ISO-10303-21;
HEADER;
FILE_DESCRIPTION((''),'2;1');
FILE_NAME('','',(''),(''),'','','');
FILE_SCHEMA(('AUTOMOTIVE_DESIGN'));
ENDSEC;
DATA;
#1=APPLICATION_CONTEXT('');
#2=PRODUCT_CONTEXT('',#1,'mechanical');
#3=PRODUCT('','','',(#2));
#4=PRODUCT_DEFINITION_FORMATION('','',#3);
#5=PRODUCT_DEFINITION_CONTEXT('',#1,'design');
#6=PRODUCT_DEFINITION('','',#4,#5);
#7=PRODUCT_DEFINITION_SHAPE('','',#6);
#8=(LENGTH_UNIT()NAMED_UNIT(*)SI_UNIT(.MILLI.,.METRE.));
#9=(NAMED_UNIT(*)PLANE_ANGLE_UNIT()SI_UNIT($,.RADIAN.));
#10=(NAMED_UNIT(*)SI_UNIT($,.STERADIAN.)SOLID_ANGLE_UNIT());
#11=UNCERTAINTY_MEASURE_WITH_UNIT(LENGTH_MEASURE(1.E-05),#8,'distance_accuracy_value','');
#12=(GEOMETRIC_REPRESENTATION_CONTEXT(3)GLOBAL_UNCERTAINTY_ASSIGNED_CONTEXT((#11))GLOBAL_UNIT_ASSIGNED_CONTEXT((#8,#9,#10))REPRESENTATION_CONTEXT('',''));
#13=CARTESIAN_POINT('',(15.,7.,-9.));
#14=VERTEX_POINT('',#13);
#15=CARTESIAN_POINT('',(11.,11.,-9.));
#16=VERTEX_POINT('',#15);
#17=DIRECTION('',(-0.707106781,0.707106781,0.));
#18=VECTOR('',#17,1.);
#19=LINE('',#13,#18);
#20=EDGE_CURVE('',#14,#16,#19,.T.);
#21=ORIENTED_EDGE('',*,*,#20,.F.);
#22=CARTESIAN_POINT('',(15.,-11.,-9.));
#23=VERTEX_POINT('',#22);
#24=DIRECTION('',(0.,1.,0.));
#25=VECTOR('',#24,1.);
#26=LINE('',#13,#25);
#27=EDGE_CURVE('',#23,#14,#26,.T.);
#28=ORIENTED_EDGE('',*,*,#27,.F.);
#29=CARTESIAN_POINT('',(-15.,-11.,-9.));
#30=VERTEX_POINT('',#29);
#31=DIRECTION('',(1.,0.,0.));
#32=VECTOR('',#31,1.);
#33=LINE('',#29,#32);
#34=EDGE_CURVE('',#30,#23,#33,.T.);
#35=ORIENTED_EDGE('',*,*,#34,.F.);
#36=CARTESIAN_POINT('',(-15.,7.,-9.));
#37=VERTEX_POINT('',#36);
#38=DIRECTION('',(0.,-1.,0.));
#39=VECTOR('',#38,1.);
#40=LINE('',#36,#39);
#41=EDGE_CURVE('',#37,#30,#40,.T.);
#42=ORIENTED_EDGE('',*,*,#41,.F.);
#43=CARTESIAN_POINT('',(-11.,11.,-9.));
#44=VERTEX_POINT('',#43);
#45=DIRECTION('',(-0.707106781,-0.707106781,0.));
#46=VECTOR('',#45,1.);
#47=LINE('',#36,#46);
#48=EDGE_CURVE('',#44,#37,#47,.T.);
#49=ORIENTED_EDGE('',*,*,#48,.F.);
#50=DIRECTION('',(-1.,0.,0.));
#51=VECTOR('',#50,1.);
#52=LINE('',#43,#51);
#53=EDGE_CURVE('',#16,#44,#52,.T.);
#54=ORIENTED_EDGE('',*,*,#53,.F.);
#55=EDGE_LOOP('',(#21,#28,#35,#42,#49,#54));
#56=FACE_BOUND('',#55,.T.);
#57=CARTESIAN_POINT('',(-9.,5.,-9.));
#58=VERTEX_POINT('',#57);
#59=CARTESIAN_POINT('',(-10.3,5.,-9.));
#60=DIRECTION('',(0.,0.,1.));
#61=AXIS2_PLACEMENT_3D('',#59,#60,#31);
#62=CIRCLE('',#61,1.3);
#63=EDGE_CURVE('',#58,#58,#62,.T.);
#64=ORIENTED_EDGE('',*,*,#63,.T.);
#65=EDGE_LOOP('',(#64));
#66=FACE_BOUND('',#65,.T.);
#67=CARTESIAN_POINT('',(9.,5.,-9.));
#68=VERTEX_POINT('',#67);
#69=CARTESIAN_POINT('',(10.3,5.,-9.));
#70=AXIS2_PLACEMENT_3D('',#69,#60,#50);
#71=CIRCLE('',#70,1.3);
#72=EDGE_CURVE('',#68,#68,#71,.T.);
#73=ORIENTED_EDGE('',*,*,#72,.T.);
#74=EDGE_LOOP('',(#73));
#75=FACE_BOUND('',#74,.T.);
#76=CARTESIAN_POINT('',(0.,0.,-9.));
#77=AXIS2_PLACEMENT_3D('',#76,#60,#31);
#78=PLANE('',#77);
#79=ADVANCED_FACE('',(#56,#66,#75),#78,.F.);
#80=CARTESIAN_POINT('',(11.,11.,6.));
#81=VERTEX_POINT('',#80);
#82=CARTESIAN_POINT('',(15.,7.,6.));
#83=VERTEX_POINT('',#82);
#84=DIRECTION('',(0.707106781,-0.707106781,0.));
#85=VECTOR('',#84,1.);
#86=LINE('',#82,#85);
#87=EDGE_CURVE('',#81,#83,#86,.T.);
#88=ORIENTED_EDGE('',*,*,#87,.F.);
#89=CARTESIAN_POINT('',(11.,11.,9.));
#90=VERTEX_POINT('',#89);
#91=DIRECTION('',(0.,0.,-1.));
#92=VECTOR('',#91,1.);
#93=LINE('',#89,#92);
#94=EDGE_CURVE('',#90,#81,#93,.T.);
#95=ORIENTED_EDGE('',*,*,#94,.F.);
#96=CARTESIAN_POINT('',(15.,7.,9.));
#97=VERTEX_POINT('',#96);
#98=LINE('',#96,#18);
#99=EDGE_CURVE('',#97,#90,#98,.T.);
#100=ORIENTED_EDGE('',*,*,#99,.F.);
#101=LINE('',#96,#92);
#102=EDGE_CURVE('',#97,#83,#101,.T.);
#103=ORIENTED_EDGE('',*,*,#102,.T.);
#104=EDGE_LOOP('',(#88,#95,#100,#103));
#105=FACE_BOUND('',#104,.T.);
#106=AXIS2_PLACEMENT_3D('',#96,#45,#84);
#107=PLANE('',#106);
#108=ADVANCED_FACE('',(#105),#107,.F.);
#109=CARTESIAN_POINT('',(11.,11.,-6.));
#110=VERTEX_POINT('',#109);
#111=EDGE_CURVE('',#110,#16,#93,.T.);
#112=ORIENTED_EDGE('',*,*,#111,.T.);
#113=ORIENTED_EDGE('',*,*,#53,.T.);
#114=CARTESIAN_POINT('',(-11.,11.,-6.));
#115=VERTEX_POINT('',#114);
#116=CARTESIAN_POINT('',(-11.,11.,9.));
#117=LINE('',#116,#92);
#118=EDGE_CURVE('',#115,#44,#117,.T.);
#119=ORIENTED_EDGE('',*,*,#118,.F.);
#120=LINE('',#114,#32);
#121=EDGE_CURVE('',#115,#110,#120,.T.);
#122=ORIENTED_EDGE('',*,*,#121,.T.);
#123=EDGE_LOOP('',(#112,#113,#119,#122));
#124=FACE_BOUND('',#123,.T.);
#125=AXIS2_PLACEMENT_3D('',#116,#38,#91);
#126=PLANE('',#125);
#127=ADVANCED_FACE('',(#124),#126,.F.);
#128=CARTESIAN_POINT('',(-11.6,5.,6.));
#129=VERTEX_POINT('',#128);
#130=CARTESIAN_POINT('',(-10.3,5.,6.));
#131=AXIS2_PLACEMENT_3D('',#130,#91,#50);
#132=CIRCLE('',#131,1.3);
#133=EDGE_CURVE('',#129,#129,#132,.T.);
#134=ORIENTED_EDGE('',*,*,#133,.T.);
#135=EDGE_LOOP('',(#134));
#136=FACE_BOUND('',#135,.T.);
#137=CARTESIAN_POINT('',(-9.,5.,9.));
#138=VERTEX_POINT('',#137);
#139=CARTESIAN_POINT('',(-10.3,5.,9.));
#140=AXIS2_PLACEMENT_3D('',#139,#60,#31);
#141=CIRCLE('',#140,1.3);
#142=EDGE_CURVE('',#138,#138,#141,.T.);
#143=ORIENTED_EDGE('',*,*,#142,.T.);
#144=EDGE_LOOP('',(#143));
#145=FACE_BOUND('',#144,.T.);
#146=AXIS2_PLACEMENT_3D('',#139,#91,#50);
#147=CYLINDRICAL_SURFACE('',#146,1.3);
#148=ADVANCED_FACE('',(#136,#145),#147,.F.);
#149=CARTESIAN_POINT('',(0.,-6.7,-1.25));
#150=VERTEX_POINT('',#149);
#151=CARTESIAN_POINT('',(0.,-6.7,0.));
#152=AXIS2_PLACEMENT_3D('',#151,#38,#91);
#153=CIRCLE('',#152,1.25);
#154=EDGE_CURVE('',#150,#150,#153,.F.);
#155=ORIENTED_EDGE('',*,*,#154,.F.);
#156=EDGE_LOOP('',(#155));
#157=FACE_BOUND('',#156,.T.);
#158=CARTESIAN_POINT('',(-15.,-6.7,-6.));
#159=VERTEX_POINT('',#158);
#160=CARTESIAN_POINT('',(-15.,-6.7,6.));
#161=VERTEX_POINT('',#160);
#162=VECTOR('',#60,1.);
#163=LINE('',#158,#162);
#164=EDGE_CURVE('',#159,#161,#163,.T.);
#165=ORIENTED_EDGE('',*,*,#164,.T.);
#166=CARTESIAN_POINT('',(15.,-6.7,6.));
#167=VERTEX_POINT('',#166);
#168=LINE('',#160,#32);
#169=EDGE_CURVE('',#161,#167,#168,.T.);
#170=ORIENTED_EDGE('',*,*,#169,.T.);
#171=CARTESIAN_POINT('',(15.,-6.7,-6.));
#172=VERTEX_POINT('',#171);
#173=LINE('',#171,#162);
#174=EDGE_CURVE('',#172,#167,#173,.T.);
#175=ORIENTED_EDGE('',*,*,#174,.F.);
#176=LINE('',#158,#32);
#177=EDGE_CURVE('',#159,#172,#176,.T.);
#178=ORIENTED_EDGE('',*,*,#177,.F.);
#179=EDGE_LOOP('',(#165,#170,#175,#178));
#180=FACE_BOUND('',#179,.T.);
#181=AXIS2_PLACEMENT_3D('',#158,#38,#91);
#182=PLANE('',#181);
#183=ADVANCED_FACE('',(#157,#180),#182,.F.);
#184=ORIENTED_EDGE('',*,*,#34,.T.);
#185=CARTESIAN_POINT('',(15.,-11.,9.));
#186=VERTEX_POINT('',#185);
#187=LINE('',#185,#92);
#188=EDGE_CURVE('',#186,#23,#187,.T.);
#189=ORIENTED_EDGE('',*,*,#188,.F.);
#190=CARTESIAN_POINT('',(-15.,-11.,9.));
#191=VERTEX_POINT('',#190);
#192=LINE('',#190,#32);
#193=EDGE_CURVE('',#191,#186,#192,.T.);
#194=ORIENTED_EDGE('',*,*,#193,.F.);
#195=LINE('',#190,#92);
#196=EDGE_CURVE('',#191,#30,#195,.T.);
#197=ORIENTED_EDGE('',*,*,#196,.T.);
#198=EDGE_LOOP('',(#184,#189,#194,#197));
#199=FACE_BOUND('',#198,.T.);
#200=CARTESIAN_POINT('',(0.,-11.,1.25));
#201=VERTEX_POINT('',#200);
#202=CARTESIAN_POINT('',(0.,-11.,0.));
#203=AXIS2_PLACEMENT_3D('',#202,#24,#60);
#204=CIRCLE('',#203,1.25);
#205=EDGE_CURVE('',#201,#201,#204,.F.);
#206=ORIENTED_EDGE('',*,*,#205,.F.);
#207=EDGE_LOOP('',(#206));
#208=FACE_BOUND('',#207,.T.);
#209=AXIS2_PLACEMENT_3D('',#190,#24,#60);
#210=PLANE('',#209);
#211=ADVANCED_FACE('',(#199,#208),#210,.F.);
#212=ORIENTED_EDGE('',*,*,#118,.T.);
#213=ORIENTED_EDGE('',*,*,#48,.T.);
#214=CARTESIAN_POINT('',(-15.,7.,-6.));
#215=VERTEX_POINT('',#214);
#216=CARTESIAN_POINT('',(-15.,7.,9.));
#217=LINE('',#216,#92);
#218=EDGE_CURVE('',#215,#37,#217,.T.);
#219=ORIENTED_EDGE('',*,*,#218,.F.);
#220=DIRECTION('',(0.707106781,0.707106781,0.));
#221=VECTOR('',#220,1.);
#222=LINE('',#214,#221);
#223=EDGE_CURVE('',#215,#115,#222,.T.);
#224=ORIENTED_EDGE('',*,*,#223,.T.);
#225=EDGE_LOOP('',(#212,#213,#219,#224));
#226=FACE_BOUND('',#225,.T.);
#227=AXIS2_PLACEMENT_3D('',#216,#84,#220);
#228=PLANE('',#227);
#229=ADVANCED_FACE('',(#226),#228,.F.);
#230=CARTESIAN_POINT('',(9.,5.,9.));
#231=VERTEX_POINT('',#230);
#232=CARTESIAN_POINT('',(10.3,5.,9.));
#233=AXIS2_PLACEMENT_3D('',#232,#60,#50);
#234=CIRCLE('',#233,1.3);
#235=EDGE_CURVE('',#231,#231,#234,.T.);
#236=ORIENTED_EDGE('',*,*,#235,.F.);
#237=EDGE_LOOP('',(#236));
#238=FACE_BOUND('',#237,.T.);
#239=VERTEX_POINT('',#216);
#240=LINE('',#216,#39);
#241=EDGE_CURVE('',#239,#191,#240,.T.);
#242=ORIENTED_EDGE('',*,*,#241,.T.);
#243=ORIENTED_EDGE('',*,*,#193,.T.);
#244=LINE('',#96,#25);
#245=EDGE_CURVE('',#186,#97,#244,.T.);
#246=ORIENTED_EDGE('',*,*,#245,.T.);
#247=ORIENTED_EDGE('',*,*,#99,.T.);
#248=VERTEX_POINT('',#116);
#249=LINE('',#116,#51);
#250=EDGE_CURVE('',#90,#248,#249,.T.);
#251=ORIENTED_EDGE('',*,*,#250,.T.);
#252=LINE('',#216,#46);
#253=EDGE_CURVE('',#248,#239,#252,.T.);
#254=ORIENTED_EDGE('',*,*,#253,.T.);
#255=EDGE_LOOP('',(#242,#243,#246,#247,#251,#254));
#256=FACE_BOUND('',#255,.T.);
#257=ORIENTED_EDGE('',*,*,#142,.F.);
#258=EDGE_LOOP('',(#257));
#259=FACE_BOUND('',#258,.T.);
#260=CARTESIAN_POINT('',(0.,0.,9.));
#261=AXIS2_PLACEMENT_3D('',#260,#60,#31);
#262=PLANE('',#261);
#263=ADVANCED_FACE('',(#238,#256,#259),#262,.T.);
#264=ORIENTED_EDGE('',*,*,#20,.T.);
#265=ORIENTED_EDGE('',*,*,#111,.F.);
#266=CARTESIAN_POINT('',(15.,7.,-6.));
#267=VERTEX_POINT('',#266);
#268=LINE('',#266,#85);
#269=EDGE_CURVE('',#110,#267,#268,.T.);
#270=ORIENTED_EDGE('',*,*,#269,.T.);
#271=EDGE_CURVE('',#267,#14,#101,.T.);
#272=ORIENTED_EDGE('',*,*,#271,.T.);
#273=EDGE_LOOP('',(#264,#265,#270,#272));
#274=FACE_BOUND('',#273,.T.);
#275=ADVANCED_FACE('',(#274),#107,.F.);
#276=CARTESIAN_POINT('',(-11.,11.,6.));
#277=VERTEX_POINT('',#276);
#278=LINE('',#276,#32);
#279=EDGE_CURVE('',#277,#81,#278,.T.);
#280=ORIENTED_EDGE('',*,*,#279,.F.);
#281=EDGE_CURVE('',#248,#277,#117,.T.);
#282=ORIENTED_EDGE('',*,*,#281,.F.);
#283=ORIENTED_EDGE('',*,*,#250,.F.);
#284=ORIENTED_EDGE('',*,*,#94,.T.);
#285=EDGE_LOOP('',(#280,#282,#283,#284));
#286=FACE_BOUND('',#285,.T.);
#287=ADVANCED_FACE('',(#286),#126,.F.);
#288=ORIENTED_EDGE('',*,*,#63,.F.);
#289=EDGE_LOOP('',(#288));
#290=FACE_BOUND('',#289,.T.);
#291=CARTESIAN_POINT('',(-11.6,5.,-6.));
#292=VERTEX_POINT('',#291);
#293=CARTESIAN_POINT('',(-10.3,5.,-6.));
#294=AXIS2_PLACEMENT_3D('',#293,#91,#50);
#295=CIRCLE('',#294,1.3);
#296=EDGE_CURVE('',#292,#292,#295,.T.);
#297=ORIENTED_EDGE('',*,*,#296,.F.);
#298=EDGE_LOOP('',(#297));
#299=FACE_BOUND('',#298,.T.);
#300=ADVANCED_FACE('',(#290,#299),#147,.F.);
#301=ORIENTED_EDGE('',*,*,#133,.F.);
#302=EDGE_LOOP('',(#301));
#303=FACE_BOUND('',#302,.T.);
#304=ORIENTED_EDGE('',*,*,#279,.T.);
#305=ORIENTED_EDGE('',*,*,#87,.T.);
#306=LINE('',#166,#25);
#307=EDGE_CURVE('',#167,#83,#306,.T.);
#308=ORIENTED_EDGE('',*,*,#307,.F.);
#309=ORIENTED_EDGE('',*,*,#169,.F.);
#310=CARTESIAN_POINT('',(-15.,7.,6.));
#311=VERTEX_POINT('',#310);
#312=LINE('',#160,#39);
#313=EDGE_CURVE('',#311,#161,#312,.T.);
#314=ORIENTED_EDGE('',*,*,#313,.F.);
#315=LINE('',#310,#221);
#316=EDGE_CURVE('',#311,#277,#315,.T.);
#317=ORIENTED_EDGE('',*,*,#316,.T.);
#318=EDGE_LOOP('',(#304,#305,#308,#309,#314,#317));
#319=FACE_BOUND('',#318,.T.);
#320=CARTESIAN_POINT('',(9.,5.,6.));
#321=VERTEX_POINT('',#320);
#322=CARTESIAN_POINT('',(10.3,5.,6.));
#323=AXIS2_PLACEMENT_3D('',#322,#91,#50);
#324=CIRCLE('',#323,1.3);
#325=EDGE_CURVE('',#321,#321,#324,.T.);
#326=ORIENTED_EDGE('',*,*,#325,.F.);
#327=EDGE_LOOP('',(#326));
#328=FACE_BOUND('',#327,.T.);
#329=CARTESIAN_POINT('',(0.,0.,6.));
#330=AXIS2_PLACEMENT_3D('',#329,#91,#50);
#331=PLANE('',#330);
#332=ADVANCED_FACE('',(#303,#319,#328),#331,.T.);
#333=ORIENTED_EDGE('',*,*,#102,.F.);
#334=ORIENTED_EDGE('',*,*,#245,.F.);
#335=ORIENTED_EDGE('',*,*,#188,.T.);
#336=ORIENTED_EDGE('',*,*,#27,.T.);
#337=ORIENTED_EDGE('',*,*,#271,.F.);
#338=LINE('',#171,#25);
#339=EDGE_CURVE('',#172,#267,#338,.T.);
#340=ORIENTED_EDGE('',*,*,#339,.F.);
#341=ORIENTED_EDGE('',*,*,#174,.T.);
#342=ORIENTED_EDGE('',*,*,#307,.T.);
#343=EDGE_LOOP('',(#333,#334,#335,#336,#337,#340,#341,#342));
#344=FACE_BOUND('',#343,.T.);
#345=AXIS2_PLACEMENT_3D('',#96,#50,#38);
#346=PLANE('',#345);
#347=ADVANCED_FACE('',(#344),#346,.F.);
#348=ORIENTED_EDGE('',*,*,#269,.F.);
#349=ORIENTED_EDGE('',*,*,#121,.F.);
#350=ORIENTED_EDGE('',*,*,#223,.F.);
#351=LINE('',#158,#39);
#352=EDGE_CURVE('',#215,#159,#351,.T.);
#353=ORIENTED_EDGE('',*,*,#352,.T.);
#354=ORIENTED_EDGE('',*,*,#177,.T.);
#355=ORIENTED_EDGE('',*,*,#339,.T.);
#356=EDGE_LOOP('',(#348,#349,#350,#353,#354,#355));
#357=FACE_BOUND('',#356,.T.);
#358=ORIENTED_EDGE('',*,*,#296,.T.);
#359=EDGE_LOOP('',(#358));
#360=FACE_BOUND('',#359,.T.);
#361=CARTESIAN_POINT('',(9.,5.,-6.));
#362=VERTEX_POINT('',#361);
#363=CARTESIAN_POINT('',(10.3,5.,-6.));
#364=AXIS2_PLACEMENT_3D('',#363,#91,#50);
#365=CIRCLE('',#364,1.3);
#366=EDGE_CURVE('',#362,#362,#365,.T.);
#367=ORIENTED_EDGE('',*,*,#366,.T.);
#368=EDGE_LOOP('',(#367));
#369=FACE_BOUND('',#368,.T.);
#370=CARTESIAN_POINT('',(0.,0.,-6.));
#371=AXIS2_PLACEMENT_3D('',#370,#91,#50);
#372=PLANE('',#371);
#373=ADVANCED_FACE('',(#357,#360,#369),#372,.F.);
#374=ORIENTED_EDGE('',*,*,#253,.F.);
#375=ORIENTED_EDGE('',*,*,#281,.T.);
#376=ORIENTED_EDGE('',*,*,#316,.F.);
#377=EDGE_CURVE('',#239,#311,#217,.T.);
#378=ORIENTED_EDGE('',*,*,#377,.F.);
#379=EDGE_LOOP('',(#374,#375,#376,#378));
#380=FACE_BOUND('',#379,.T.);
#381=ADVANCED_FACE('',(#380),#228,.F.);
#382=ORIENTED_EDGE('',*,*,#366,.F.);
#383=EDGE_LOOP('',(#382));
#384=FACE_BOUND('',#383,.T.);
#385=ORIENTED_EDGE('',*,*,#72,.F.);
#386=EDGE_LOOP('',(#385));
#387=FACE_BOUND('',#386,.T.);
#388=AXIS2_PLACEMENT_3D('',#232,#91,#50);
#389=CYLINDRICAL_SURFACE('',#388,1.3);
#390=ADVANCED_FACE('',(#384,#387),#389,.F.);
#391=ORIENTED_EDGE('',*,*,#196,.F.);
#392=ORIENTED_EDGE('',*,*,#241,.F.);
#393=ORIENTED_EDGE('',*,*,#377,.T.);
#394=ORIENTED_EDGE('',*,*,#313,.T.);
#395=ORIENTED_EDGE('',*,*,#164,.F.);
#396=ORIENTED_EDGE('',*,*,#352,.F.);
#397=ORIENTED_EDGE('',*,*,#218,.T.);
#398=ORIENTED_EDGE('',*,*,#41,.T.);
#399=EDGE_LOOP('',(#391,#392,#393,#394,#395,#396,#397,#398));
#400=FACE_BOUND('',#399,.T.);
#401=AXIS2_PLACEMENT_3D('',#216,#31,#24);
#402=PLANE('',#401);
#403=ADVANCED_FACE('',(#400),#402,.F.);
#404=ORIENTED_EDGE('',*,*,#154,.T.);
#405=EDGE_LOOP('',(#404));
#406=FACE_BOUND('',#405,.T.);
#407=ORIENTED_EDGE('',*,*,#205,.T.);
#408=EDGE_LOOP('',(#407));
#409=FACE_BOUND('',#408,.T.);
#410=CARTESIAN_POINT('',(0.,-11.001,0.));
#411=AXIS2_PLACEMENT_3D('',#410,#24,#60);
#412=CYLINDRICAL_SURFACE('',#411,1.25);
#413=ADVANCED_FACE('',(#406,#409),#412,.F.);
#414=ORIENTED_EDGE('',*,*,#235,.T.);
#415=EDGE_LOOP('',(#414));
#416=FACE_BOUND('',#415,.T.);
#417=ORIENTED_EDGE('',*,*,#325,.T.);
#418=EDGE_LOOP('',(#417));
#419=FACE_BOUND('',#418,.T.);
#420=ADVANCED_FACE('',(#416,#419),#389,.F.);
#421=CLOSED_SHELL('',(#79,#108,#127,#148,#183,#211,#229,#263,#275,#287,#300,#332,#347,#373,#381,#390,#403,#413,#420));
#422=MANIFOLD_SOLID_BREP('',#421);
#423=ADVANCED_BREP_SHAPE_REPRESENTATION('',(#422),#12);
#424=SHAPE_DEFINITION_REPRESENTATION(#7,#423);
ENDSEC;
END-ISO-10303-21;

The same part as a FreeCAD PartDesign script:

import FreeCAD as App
import Part
import Sketcher

V = App.Vector

doc = App.newDocument("Part")
params = doc.addObject("Spreadsheet::Sheet", "Params")
for row, (alias, value) in enumerate([
    ("sketch1_diameter", "2.6 mm"),
    ("sketch1_width", "22 mm"),
    ("sketch1_width2", "30 mm"),
    ("sketch1_height", "18 mm"),
    ("pad1_length", "18 mm"),
    ("sketch2_width", "30 mm"),
    ("pocket1_length", "12 mm"),
    ("sketch3_diameter", "2.5 mm"),
    ("pocket2_length", "11 mm"),
], start=1):
    params.set(f"A{row}", alias)
    params.set(f"B{row}", "=" + value)
    params.setAlias(f"B{row}", alias)

body = doc.addObject("PartDesign::Body", "Body")

# Sketch on XY plane
sketch1 = doc.addObject("Sketcher::SketchObject", "Sketch")
body.addObject(sketch1)
sketch1.AttachmentSupport = (doc.XY_Plane, [""])
sketch1.MapMode = "FlatFace"
sketch1.addGeometry([
    Part.LineSegment(V(11, 11, 0), V(-11, 11, 0)),  # 0
    Part.LineSegment(V(-11, 11, 0), V(-15, 7, 0)),  # 1
    Part.LineSegment(V(-15, 7, 0), V(-15, -11, 0)),  # 2
    Part.LineSegment(V(-15, -11, 0), V(15, -11, 0)),  # 3
    Part.LineSegment(V(15, -11, 0), V(15, 7, 0)),  # 4
    Part.LineSegment(V(15, 7, 0), V(11, 11, 0)),  # 5
    Part.Circle(V(10.3, 5, 0), V(0, 0, 1), 1.3),  # 6
    Part.Circle(V(-10.3, 5, 0), V(0, 0, 1), 1.3),  # 7
], False)
sketch1.addConstraint([
    Sketcher.Constraint("Coincident", 0, 2, 1, 1),
    Sketcher.Constraint("Coincident", 1, 2, 2, 1),
    Sketcher.Constraint("Coincident", 2, 2, 3, 1),
    Sketcher.Constraint("Coincident", 3, 2, 4, 1),
    Sketcher.Constraint("Coincident", 4, 2, 5, 1),
    Sketcher.Constraint("Coincident", 5, 2, 0, 1),
    Sketcher.Constraint("Horizontal", 0),
    Sketcher.Constraint("Vertical", 2),
    Sketcher.Constraint("Horizontal", 3),
    Sketcher.Constraint("Vertical", 4),
    Sketcher.Constraint("Equal", 6, 7),
    Sketcher.Constraint("Symmetric", 6, 3, 7, 3, -2),
    Sketcher.Constraint("Symmetric", 1, 2, 4, 2, -2),
    Sketcher.Constraint("Perpendicular", 1, 5),
    Sketcher.Constraint("Equal", 1, 5),
    Sketcher.Constraint("Diameter", 6, 2.6),
    Sketcher.Constraint("DistanceX", 0, 2, 0, 1, 22.0),
    Sketcher.Constraint("DistanceX", 3, 1, 3, 2, 30.0),
    Sketcher.Constraint("DistanceY", 2, 2, 2, 1, 18.0),
    Sketcher.Constraint("DistanceY", -1, 1, 6, 3, 5.0),
    Sketcher.Constraint("DistanceY", -1, 1, 0, 2, 11.0),
    Sketcher.Constraint("DistanceX", -1, 1, 6, 3, 10.3),
])
sketch1.setExpression("Constraints[15]", "Params.sketch1_diameter")
sketch1.setExpression("Constraints[16]", "Params.sketch1_width")
sketch1.setExpression("Constraints[17]", "Params.sketch1_width2")
sketch1.setExpression("Constraints[18]", "Params.sketch1_height")
pad1 = doc.addObject("PartDesign::Pad", "Pad")
body.addObject(pad1)
pad1.Profile = sketch1
pad1.setExpression("Length", "Params.pad1_length")
pad1.Midplane = True

# Sketch on XY plane
sketch2 = doc.addObject("Sketcher::SketchObject", "Sketch001")
body.addObject(sketch2)
sketch2.AttachmentSupport = (doc.XY_Plane, [""])
sketch2.MapMode = "FlatFace"
sketch2.addGeometry([
    Part.LineSegment(V(-15, 14, 0), V(-15, -7, 0)),
    Part.LineSegment(V(-15, -7, 0), V(15, -7, 0)),
    Part.LineSegment(V(15, -7, 0), V(15, 14, 0)),
    Part.LineSegment(V(15, 14, 0), V(-15, 14, 0)),
], False)
sketch2.addConstraint([
    Sketcher.Constraint("Coincident", 0, 2, 1, 1),
    Sketcher.Constraint("Coincident", 1, 2, 2, 1),
    Sketcher.Constraint("Coincident", 2, 2, 3, 1),
    Sketcher.Constraint("Coincident", 3, 2, 0, 1),
    Sketcher.Constraint("Vertical", 0),
    Sketcher.Constraint("Horizontal", 1),
    Sketcher.Constraint("Vertical", 2),
    Sketcher.Constraint("Horizontal", 3),
    Sketcher.Constraint("DistanceX", 1, 1, 1, 2, 30.0),
    Sketcher.Constraint("DistanceX", 0, 2, -1, 1, 15.0),
    Sketcher.Constraint("DistanceY", 0, 2, -1, 1, 6.7),
    Sketcher.Constraint("DistanceY", 0, 2, 0, 1, 20.835576),
])
sketch2.setExpression("Constraints[8]", "Params.sketch2_width")
pocket1 = doc.addObject("PartDesign::Pocket", "Pocket")
body.addObject(pocket1)
pocket1.Profile = sketch2
pocket1.setExpression("Length", "Params.pocket1_length")
pocket1.Midplane = True

# Sketch on XZ plane
sketch3 = doc.addObject("Sketcher::SketchObject", "Sketch002")
body.addObject(sketch3)
sketch3.AttachmentSupport = (doc.XZ_Plane, [""])
sketch3.MapMode = "FlatFace"
sketch3.addGeometry(Part.Circle(V(0, 0, 0), V(0, 0, 1), 1.2), False)
sketch3.addConstraint([
    Sketcher.Constraint("Coincident", 0, 3, -1, 1),
    Sketcher.Constraint("Diameter", 0, 2.5),
])
sketch3.setExpression("Constraints[1]", "Params.sketch3_diameter")
pocket2 = doc.addObject("PartDesign::Pocket", "Pocket001")
body.addObject(pocket2)
pocket2.Profile = sketch3
pocket2.setExpression("Length", "Params.pocket2_length")
pocket2.Reversed = True

doc.recompute()
